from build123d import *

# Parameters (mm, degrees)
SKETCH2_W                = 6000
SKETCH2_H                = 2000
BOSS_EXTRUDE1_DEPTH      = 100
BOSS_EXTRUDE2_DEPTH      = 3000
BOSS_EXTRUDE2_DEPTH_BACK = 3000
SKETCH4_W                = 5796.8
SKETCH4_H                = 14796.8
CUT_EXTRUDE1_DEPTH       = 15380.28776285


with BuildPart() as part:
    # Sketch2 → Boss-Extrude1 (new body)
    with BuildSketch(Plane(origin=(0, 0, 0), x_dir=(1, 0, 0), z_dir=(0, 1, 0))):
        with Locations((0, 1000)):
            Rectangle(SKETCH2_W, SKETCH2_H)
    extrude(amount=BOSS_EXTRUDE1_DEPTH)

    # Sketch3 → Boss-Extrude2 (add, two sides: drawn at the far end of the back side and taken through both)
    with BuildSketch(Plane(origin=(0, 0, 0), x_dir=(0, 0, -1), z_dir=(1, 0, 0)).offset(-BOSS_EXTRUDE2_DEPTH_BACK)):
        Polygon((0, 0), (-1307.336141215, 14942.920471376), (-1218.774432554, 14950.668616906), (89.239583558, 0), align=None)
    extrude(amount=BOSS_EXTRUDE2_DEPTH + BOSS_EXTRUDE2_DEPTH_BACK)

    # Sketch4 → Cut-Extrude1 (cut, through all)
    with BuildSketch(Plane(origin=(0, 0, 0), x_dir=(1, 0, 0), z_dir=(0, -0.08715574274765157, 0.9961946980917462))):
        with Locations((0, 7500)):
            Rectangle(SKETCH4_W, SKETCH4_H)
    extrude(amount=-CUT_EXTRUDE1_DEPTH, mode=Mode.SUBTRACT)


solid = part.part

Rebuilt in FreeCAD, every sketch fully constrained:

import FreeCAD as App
import Part
import Sketcher
Q = App.Units.Quantity

doc = App.newDocument("Part")
body = doc.addObject("PartDesign::Body", "Body")

# Sketch on XZ plane
sketch1 = body.newObject("Sketcher::SketchObject", "Sketch")
sketch1.AttachmentSupport = (doc.getObject("XZ_Plane"), [""])
sketch1.MapMode = "FlatFace"
sketch1.addGeometry(Part.LineSegment(App.Vector(-3000, -2000, 0), App.Vector(-3000, 0, 0)), False)
sketch1.addGeometry(Part.LineSegment(App.Vector(-3000, 0, 0), App.Vector(3000, 0, 0)), False)
sketch1.addGeometry(Part.LineSegment(App.Vector(3000, 0, 0), App.Vector(3000, -2000, 0)), False)
sketch1.addGeometry(Part.LineSegment(App.Vector(3000, -2000, 0), App.Vector(-3000, -2000, 0)), False)
sketch1.addConstraint(Sketcher.Constraint("Coincident", 0, 2, 1, 1))
sketch1.addConstraint(Sketcher.Constraint("Coincident", 1, 2, 2, 1))
sketch1.addConstraint(Sketcher.Constraint("Coincident", 2, 2, 3, 1))
sketch1.addConstraint(Sketcher.Constraint("Coincident", 3, 2, 0, 1))
sketch1.addConstraint(Sketcher.Constraint("Vertical", 0))
sketch1.addConstraint(Sketcher.Constraint("Horizontal", 1))
sketch1.addConstraint(Sketcher.Constraint("Vertical", 2))
sketch1.addConstraint(Sketcher.Constraint("Horizontal", 3))
sketch1.addConstraint(Sketcher.Constraint("Symmetric", 0, 2, 1, 2, -1, 1))
sketch1.addConstraint(Sketcher.Constraint("DistanceX", 1, 1, 1, 2, 6000.0))
sketch1.addConstraint(Sketcher.Constraint("DistanceY", 0, 1, 0, 2, 2000.0))
pad1 = body.newObject("PartDesign::Pad", "Pad")
pad1.Profile = sketch1
pad1.Length = 100
pad1.Reversed = True

# Sketch on YZ plane
sketch2 = body.newObject("Sketcher::SketchObject", "Sketch001")
sketch2.AttachmentSupport = (doc.getObject("YZ_Plane"), [""])
sketch2.MapMode = "FlatFace"
sketch2.addGeometry(Part.LineSegment(App.Vector(14942.920471, 1307.336141, 0), App.Vector(0, 0, 0)), False)
sketch2.addGeometry(Part.LineSegment(App.Vector(0, 0, 0), App.Vector(0, -89.239584, 0)), False)
sketch2.addGeometry(Part.LineSegment(App.Vector(0, -89.239584, 0), App.Vector(14950.668617, 1218.774433, 0)), False)
sketch2.addGeometry(Part.LineSegment(App.Vector(14950.668617, 1218.774433, 0), App.Vector(14942.920471, 1307.336141, 0)), False)
sketch2.addConstraint(Sketcher.Constraint("Coincident", 0, 2, 1, 1))
sketch2.addConstraint(Sketcher.Constraint("Coincident", 1, 2, 2, 1))
sketch2.addConstraint(Sketcher.Constraint("Coincident", 2, 2, 3, 1))
sketch2.addConstraint(Sketcher.Constraint("Coincident", 3, 2, 0, 1))
sketch2.addConstraint(Sketcher.Constraint("Vertical", 1))
sketch2.addConstraint(Sketcher.Constraint("Coincident", 0, 2, -1, 1))
sketch2.addConstraint(Sketcher.Constraint("Parallel", 0, 2))
sketch2.addConstraint(Sketcher.Constraint("Perpendicular", 2, 3))
sketch2.addConstraint(Sketcher.Constraint("Angle", 0, Q("-175 deg")))
sketch2.addConstraint(Sketcher.Constraint("Distance", 0, 15000.0))
sketch2.addConstraint(Sketcher.Constraint("Distance", 3, 88.9))
pad2 = body.newObject("PartDesign::Pad", "Pad001")
pad2.Profile = sketch2
pad2.Type = "TwoLengths"
pad2.Length = 3000
pad2.Length2 = 3000

# Sketch on an angled plane
sketch3 = body.newObject("Sketcher::SketchObject", "Sketch002")
sketch3.Placement = App.Placement(App.Vector(0, 0, 0), App.Rotation(App.Vector(1, 0, 0), App.Vector(0, 0.996194698, 0.087155743), App.Vector(0, -0.087155743, 0.996194698), "ZXY"))
sketch3.addGeometry(Part.LineSegment(App.Vector(-2898.4, 14898.399998, 0), App.Vector(-2898.4, 101.6, 0)), False)
sketch3.addGeometry(Part.LineSegment(App.Vector(-2898.4, 101.6, 0), App.Vector(2898.4, 101.6, 0)), False)
sketch3.addGeometry(Part.LineSegment(App.Vector(2898.4, 101.6, 0), App.Vector(2898.4, 14898.399998, 0)), False)
sketch3.addGeometry(Part.LineSegment(App.Vector(2898.4, 14898.399998, 0), App.Vector(-2898.4, 14898.399998, 0)), False)
sketch3.addConstraint(Sketcher.Constraint("Coincident", 0, 2, 1, 1))
sketch3.addConstraint(Sketcher.Constraint("Coincident", 1, 2, 2, 1))
sketch3.addConstraint(Sketcher.Constraint("Coincident", 2, 2, 3, 1))
sketch3.addConstraint(Sketcher.Constraint("Coincident", 3, 2, 0, 1))
sketch3.addConstraint(Sketcher.Constraint("Vertical", 0))
sketch3.addConstraint(Sketcher.Constraint("Horizontal", 1))
sketch3.addConstraint(Sketcher.Constraint("Vertical", 2))
sketch3.addConstraint(Sketcher.Constraint("Horizontal", 3))
sketch3.addConstraint(Sketcher.Constraint("DistanceX", 1, 1, 1, 2, 5796.8))
sketch3.addConstraint(Sketcher.Constraint("DistanceX", 0, 2, -1, 1, 2898.4))
sketch3.addConstraint(Sketcher.Constraint("DistanceY", -1, 1, 0, 2, 101.6))
sketch3.addConstraint(Sketcher.Constraint("DistanceY", 0, 2, 0, 1, 14796.799998))
pocket1 = body.newObject("PartDesign::Pocket", "Pocket")
pocket1.Profile = sketch3
pocket1.Type = "ThroughAll"

doc.recompute()
